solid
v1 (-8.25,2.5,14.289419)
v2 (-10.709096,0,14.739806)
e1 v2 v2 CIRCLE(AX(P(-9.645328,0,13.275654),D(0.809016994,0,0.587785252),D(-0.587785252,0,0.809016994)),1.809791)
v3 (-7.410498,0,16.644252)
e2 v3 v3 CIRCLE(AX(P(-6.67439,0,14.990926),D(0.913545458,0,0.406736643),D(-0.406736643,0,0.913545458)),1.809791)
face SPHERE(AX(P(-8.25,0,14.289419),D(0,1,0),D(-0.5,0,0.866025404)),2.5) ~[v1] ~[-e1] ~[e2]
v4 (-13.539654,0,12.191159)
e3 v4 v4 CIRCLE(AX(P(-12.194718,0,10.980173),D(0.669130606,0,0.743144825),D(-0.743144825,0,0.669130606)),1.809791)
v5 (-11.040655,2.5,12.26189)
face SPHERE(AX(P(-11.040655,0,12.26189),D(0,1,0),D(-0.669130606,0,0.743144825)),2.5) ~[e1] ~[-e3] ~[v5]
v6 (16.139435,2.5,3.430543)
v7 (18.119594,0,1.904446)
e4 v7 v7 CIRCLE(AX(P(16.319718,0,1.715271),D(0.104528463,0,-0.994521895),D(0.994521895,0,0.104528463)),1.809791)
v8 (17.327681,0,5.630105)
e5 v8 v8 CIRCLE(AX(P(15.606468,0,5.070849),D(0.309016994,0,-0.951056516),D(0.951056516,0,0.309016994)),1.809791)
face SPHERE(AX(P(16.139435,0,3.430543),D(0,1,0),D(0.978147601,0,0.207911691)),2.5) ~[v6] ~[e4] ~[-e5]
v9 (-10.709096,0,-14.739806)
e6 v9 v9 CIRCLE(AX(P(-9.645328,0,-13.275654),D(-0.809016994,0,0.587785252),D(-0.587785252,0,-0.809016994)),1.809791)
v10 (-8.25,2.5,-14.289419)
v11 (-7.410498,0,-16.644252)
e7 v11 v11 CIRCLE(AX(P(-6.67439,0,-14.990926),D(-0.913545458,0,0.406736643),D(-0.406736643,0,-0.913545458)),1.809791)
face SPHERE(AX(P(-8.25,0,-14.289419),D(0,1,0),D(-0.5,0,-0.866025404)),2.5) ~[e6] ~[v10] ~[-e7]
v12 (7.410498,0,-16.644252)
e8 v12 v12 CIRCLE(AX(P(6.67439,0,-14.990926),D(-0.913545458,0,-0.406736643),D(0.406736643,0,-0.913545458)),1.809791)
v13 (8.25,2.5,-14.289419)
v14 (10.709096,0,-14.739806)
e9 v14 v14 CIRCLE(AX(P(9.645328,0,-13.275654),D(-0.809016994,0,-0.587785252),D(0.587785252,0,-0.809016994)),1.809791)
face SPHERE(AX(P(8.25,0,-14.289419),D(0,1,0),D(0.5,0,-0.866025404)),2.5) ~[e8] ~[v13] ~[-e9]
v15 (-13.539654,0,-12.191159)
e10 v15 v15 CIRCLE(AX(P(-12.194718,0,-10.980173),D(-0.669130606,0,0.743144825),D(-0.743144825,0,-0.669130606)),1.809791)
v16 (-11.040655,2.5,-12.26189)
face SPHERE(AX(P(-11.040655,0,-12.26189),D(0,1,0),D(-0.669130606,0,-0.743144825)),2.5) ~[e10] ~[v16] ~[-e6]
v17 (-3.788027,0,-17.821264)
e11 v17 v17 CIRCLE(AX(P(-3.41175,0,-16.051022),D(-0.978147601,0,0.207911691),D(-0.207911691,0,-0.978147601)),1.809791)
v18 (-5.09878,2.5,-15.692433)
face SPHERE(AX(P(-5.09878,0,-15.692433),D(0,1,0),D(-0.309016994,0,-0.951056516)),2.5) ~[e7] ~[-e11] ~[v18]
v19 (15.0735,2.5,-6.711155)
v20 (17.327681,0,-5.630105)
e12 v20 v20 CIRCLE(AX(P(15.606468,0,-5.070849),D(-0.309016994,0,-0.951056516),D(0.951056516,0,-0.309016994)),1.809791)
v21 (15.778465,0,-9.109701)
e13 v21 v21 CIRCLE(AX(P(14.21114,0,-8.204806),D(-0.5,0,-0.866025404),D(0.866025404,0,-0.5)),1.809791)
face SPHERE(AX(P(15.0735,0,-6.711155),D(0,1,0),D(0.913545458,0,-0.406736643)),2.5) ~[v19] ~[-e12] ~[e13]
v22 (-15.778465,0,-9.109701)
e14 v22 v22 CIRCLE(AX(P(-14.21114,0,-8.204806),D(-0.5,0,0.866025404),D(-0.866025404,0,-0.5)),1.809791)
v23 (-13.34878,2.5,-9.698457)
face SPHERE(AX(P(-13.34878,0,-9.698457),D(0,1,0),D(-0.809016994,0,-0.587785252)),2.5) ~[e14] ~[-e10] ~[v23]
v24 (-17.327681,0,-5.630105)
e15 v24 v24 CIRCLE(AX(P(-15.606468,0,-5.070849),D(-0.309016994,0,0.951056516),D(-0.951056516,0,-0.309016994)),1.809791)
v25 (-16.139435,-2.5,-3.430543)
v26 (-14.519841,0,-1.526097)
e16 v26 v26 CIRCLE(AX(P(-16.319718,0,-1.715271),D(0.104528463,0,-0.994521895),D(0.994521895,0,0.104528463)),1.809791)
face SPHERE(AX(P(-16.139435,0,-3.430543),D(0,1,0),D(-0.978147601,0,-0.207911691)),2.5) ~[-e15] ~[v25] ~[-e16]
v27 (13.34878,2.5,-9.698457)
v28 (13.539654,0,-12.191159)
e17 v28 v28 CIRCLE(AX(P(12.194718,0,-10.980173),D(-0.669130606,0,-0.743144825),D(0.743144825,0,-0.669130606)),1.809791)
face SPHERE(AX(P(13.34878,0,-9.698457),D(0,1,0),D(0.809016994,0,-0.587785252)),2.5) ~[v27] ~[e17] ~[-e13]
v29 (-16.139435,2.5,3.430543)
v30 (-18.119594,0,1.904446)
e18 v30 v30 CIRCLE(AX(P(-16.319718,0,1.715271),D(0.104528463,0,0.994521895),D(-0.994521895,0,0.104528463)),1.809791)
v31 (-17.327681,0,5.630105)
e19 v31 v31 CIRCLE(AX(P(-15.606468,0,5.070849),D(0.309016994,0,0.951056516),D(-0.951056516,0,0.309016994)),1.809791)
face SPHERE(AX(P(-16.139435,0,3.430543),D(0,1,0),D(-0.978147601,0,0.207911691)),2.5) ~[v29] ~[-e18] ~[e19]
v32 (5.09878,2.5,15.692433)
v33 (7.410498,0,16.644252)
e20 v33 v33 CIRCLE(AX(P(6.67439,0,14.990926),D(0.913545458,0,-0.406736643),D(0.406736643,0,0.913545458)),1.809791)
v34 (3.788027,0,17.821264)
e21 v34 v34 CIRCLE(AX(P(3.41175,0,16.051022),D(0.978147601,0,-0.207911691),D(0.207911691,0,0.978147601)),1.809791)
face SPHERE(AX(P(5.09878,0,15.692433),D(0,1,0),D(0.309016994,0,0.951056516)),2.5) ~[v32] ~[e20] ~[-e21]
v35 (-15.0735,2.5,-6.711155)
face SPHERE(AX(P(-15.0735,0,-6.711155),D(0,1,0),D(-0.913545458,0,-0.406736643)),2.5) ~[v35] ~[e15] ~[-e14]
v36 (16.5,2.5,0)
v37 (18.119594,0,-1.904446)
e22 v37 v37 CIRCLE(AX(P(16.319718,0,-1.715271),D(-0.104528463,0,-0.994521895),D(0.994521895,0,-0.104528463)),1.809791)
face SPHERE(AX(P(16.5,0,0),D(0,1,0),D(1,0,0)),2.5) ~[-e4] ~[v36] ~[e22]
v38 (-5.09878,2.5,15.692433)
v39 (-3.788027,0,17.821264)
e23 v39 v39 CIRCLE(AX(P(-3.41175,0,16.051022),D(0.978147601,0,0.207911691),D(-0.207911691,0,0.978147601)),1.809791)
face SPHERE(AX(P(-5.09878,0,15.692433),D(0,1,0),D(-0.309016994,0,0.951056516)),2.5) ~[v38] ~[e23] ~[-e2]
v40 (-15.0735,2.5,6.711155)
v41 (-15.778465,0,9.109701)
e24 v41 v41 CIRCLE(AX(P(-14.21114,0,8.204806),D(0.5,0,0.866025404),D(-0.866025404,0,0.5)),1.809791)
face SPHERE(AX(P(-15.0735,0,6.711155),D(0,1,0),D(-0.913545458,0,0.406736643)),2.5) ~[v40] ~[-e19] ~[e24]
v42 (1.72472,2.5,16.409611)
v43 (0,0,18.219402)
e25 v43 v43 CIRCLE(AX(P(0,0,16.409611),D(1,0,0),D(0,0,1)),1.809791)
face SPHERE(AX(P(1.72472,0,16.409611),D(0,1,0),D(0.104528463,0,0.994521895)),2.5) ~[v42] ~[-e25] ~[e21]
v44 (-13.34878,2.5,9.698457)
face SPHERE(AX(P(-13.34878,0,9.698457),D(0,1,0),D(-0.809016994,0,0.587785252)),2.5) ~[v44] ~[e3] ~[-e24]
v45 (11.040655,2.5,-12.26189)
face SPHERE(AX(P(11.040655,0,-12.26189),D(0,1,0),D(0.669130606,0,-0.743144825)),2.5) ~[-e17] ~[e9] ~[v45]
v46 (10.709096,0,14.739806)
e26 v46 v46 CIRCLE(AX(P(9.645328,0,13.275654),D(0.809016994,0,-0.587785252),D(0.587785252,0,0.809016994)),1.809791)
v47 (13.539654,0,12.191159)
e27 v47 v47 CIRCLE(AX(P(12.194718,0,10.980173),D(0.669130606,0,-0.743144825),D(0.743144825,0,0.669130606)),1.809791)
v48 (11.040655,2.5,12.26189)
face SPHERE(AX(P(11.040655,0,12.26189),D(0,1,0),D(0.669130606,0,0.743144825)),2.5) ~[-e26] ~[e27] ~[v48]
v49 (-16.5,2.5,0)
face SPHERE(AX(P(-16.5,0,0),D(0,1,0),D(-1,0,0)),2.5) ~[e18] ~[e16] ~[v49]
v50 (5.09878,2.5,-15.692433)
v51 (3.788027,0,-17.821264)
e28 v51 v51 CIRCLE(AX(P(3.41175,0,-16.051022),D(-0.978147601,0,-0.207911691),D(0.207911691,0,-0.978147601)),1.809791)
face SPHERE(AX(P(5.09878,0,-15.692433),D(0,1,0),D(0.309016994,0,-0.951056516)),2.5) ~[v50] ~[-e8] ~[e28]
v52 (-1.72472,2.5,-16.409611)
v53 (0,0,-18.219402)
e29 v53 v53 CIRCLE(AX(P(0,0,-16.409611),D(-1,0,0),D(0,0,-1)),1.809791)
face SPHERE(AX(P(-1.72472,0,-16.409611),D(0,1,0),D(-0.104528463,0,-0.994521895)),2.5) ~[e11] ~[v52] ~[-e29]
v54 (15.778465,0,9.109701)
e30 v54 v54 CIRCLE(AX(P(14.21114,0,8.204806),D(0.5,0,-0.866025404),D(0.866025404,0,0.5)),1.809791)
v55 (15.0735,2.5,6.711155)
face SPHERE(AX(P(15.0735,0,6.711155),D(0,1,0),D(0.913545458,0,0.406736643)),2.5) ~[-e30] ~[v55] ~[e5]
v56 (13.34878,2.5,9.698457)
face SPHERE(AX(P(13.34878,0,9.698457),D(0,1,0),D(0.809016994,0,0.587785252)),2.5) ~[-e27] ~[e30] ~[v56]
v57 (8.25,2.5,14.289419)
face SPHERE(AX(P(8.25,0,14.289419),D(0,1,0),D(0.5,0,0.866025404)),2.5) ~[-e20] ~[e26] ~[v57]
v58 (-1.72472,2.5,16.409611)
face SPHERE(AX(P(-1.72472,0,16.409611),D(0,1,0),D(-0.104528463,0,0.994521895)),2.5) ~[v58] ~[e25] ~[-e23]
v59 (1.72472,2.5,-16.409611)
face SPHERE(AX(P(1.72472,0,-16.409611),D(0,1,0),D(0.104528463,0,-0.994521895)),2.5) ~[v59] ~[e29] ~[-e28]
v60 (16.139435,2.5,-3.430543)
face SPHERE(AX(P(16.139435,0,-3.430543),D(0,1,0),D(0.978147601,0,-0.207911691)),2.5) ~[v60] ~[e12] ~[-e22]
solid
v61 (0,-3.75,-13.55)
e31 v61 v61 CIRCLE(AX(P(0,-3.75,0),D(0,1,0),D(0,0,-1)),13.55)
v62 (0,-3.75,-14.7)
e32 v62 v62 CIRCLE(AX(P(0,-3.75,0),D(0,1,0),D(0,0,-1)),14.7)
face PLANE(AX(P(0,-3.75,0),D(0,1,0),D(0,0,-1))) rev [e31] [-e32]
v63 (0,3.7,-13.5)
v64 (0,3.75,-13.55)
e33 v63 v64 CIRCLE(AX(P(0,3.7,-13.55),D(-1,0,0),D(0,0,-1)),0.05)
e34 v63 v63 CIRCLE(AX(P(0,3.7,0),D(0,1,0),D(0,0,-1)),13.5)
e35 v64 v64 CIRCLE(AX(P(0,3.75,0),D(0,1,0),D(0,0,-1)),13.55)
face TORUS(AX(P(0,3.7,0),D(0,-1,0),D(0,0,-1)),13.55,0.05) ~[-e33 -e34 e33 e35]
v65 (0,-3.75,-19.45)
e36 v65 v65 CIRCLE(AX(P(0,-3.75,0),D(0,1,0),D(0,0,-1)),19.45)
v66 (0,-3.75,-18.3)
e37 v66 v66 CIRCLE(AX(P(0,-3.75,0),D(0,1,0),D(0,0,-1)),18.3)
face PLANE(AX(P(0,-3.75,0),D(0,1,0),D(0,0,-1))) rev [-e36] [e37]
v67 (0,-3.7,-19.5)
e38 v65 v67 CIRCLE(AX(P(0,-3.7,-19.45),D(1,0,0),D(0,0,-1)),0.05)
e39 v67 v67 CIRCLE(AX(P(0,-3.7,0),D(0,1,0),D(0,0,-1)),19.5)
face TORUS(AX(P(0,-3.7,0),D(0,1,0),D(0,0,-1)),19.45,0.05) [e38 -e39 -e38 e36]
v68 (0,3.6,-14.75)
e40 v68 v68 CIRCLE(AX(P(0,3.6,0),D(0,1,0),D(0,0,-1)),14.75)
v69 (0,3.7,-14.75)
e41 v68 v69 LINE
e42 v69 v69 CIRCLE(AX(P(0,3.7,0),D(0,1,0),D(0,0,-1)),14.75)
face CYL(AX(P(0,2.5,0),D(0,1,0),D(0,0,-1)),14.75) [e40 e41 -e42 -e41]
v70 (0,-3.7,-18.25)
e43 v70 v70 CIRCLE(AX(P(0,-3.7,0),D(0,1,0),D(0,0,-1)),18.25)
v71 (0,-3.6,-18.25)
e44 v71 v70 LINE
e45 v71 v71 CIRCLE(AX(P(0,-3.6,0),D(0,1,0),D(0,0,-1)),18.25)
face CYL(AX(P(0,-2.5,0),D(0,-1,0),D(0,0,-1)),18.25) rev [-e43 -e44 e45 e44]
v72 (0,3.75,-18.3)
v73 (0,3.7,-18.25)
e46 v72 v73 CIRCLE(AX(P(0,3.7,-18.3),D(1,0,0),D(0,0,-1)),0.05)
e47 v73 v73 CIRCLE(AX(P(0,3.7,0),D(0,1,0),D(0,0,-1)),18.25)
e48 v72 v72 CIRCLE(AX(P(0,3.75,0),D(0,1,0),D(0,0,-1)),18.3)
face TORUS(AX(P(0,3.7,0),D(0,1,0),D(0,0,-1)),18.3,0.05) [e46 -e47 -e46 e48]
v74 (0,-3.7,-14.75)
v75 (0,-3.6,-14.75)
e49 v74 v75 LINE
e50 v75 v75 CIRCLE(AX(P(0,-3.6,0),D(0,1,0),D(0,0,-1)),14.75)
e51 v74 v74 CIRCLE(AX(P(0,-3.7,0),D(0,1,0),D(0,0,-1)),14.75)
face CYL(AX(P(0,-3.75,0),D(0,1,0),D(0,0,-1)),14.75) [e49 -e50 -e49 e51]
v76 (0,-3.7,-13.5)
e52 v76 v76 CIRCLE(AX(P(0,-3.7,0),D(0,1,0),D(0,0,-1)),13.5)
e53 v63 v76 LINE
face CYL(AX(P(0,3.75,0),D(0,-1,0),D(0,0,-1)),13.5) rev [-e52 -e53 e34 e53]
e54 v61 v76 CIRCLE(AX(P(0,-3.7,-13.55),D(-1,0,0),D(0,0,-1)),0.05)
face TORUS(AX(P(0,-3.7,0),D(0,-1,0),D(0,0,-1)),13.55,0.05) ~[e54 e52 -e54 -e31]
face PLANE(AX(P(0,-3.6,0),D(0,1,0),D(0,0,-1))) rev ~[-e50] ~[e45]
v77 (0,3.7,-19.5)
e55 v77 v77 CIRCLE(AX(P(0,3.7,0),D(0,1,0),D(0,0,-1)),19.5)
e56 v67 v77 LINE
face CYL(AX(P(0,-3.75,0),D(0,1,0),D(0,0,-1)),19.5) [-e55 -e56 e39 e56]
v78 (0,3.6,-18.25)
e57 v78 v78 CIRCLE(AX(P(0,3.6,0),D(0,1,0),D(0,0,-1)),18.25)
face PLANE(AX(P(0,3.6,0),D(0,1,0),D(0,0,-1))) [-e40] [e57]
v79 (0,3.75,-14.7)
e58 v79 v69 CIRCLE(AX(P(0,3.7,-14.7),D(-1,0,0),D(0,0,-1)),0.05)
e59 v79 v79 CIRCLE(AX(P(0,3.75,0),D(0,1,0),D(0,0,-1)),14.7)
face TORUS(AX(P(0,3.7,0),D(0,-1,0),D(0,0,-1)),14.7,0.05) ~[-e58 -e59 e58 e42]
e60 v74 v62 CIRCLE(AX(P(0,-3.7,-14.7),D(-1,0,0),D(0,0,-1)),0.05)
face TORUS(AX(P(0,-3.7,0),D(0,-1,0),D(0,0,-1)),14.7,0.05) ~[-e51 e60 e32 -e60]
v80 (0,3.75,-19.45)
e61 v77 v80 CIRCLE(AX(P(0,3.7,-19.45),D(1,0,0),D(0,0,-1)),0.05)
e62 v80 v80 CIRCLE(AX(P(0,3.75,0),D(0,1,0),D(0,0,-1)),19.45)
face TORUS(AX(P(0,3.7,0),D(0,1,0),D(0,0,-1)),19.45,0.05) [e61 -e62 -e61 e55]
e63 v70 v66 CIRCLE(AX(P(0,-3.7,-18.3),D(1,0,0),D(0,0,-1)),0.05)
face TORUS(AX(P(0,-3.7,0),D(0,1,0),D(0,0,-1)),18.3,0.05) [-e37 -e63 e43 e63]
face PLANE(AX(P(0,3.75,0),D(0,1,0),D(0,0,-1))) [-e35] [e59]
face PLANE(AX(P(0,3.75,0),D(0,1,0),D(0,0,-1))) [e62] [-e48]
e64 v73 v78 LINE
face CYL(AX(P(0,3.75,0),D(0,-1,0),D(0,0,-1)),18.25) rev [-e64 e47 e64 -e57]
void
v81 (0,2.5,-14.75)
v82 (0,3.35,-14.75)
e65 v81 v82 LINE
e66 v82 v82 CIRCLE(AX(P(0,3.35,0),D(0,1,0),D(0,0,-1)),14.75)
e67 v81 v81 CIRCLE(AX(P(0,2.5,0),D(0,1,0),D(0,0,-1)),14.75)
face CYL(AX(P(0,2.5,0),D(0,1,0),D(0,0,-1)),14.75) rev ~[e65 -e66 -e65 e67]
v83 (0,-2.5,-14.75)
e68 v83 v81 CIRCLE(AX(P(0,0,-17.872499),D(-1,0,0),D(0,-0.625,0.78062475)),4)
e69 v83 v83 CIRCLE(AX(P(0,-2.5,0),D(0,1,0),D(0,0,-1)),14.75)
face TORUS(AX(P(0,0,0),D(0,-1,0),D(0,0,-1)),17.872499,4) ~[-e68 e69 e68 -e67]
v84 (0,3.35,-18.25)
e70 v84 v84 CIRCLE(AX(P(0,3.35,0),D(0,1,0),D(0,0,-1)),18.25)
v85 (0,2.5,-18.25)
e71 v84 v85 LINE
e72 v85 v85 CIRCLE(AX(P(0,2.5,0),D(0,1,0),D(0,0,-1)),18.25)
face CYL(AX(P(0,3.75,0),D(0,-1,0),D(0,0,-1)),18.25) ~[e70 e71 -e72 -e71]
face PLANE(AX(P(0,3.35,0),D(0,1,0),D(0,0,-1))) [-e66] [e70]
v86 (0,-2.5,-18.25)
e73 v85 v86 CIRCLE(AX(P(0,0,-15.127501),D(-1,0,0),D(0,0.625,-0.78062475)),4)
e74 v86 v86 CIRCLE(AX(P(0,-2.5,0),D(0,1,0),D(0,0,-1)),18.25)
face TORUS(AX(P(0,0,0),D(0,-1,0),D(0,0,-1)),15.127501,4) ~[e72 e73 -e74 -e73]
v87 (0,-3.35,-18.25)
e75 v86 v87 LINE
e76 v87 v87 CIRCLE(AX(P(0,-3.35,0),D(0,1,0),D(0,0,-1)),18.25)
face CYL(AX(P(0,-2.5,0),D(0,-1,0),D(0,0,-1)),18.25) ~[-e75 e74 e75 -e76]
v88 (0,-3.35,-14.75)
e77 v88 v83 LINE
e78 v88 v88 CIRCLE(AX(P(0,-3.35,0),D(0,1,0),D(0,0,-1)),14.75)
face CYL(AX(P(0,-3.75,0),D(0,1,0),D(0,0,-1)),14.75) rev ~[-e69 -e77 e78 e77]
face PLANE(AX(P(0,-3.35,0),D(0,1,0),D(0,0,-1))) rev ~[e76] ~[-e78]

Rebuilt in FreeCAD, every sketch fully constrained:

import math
import FreeCAD as App
import Part
import Sketcher
from FreeCAD import Vector
Q = App.Units.Quantity


def edges_at(feature, points):
    """Names of the edges that pass closest to the given points."""
    edges = feature.Shape.Edges
    near = lambda p: min(range(len(edges)), key=lambda i: edges[i].distToShape(Part.Vertex(*p))[0])
    return sorted({f"Edge{near(p) + 1}" for p in points})

doc = App.newDocument("Part")
body = doc.addObject("PartDesign::Body", "Body")
body.AllowCompound = True

# Sketch on XY plane
sketch1 = body.newObject("Sketcher::SketchObject", "Sketch")
sketch1.AttachmentSupport = (doc.getObject("XY_Plane"), [""])
sketch1.MapMode = "FlatFace"
sketch1.addGeometry([
    Part.LineSegment(Vector(-18.2, 3.8, 0), Vector(-19.5, 3.8, 0)),  # 0
    Part.LineSegment(Vector(-19.5, 3.8, 0), Vector(-19.5, -3.8, 0)),  # 1
    Part.LineSegment(Vector(-19.5, -3.8, 0), Vector(-18.2, -3.8, 0)),  # 2
    Part.LineSegment(Vector(-18.2, -3.8, 0), Vector(-18.2, -2.5, 0)),  # 3
    Part.ArcOfCircle(Part.Circle(Vector(-15.1, 0, 0), Vector(0, 0, 1), 4), math.radians(141), math.radians(219)),  # 4
    Part.LineSegment(Vector(-18.2, 2.5, 0), Vector(-18.2, 3.8, 0)),  # 5
    Part.LineSegment(Vector(-14.8, -2.5, 0), Vector(-14.8, -3.8, 0)),  # 6
    Part.LineSegment(Vector(-14.8, -3.8, 0), Vector(-13.5, -3.8, 0)),  # 7
    Part.LineSegment(Vector(-13.5, -3.8, 0), Vector(-13.5, 3.8, 0)),  # 8
    Part.LineSegment(Vector(-13.5, 3.8, 0), Vector(-14.8, 3.8, 0)),  # 9
    Part.LineSegment(Vector(-14.8, 3.8, 0), Vector(-14.8, 2.5, 0)),  # 10
    Part.ArcOfCircle(Part.Circle(Vector(-17.9, 0, 0), Vector(0, 0, 1), 4), math.radians(-39), math.radians(39)),  # 11
], False)
sketch1.addConstraint([
    Sketcher.Constraint("Coincident", 0, 2, 1, 1),
    Sketcher.Constraint("Coincident", 1, 2, 2, 1),
    Sketcher.Constraint("Coincident", 2, 2, 3, 1),
    Sketcher.Constraint("Coincident", 3, 2, 4, 2),
    Sketcher.Constraint("Coincident", 4, 1, 5, 1),
    Sketcher.Constraint("Coincident", 5, 2, 0, 1),
    Sketcher.Constraint("Coincident", 6, 2, 7, 1),
    Sketcher.Constraint("Coincident", 7, 2, 8, 1),
    Sketcher.Constraint("Coincident", 8, 2, 9, 1),
    Sketcher.Constraint("Coincident", 9, 2, 10, 1),
    Sketcher.Constraint("Coincident", 10, 2, 11, 2),
    Sketcher.Constraint("Coincident", 11, 1, 6, 1),
    Sketcher.Constraint("Horizontal", 0),
    Sketcher.Constraint("Vertical", 1),
    Sketcher.Constraint("Horizontal", 2),
    Sketcher.Constraint("Vertical", 3),
    Sketcher.Constraint("Vertical", 5),
    Sketcher.Constraint("Vertical", 6),
    Sketcher.Constraint("Horizontal", 7),
    Sketcher.Constraint("Vertical", 8),
    Sketcher.Constraint("Horizontal", 9),
    Sketcher.Constraint("Vertical", 10),
    Sketcher.Constraint("Equal", 4, 11),
    Sketcher.Constraint("Symmetric", 3, 2, 4, 1, -1),
    Sketcher.Constraint("Symmetric", 6, 2, 9, 2, -1),
    Sketcher.Constraint("PointOnObject", 11, 3, -1),
    Sketcher.Constraint("Horizontal", 2, 2, 6, 2),
    Sketcher.Constraint("Horizontal", 5, 2, 8, 2),
    Sketcher.Constraint("Horizontal", 4, 1, 10, 2),
    Sketcher.Constraint("Equal", 2, 7),
    Sketcher.Constraint("Equal", 9, 3),
    Sketcher.Constraint("Radius", 4, Q("4 mm")),
    Sketcher.Constraint("DistanceY", 1, 2, 1, 1, Q("7.5 mm")),
    Sketcher.Constraint("DistanceY", 3, 2, 4, 1, Q("5 mm")),
    Sketcher.Constraint("DistanceX", 0, 2, 8, 2, Q("6 mm")),
    Sketcher.Constraint("DistanceX", 0, 2, -1, 1, Q("19.5 mm")),
])
revolution = body.newObject("PartDesign::Revolution", "Revolution")
revolution.Profile = sketch1
revolution.ReferenceAxis = (sketch1, ["V_Axis"])
revolution.Angle = 360

# Sketch on XY plane
sketch2 = body.newObject("Sketcher::SketchObject", "Sketch001")
sketch2.AttachmentSupport = (doc.getObject("XY_Plane"), [""])
sketch2.MapMode = "FlatFace"
sketch2.addGeometry([
    Part.LineSegment(Vector(-18.25, 3.6, 0), Vector(-18.25, 3.35, 0)),  # 0
    Part.LineSegment(Vector(-18.25, 3.35, 0), Vector(-13.5, 3.35, 0)),  # 1
    Part.LineSegment(Vector(-13.5, 3.35, 0), Vector(-13.5, 3.6, 0)),  # 2
    Part.LineSegment(Vector(-13.5, 3.6, 0), Vector(-18.25, 3.6, 0)),  # 3
    Part.LineSegment(Vector(-18.25, -3.35, 0), Vector(-18.25, -3.6, 0)),  # 4
    Part.LineSegment(Vector(-18.25, -3.6, 0), Vector(-13.5, -3.6, 0)),  # 5
    Part.LineSegment(Vector(-13.5, -3.6, 0), Vector(-13.5, -3.35, 0)),  # 6
    Part.LineSegment(Vector(-13.5, -3.35, 0), Vector(-18.25, -3.35, 0)),  # 7
], False)
sketch2.addConstraint([
    Sketcher.Constraint("Coincident", 0, 2, 1, 1),
    Sketcher.Constraint("Coincident", 1, 2, 2, 1),
    Sketcher.Constraint("Coincident", 2, 2, 3, 1),
    Sketcher.Constraint("Coincident", 3, 2, 0, 1),
    Sketcher.Constraint("Coincident", 4, 2, 5, 1),
    Sketcher.Constraint("Coincident", 5, 2, 6, 1),
    Sketcher.Constraint("Coincident", 6, 2, 7, 1),
    Sketcher.Constraint("Coincident", 7, 2, 4, 1),
    Sketcher.Constraint("Vertical", 0),
    Sketcher.Constraint("Horizontal", 1),
    Sketcher.Constraint("Vertical", 2),
    Sketcher.Constraint("Horizontal", 3),
    Sketcher.Constraint("Vertical", 4),
    Sketcher.Constraint("Horizontal", 5),
    Sketcher.Constraint("Vertical", 6),
    Sketcher.Constraint("Horizontal", 7),
    Sketcher.Constraint("Symmetric", 3, 2, 4, 2, -1),
    Sketcher.Constraint("Symmetric", 1, 2, 6, 2, -1),
    Sketcher.Constraint("DistanceX", 1, 1, 1, 2, Q("4.75 mm")),
    Sketcher.Constraint("DistanceY", 0, 2, 0, 1, Q("0.25 mm")),
    Sketcher.Constraint("DistanceX", 1, 2, -1, 1, Q("13.5 mm")),
    Sketcher.Constraint("DistanceY", -1, 1, 2, 2, Q("3.6 mm")),
])
revolution2 = body.newObject("PartDesign::Revolution", "Revolution001")
revolution2.Profile = sketch2
revolution2.ReferenceAxis = (sketch2, ["V_Axis"])
revolution2.Angle = 360
doc.recompute()

fillet = body.newObject("PartDesign::Fillet", "Fillet")
fillet.Base = (revolution2, edges_at(revolution2, [
    (0, -3.75, 19.5),
    (0, -3.75, 18.25),
    (0, 3.75, 18.25),
    (0, 3.75, 19.5),
]))
fillet.Radius = 0.05
doc.recompute()

fillet2 = body.newObject("PartDesign::Fillet", "Fillet001")
fillet2.Base = (fillet, edges_at(fillet, [
    (0, -3.75, 13.5),
    (0, 3.75, 14.75),
    (0, -3.75, 14.75),
    (0, 3.75, 13.5),
]))
fillet2.Radius = 0.05
body2 = doc.addObject("PartDesign::Body", "Body001")

# Sketch on XY plane
sketch3 = body2.newObject("Sketcher::SketchObject", "Sketch002")
sketch3.AttachmentSupport = (doc.getObject("XY_Plane001"), [""])
sketch3.MapMode = "FlatFace"
sketch3.addGeometry([
    Part.LineSegment(Vector(-16.5, -2.5, 0), Vector(-16.5, 2.5, 0)),
    Part.ArcOfCircle(Part.Circle(Vector(-16.5, 0, 0), Vector(0, 0, 1), 2.5), math.radians(90), math.radians(270)),
], False)
sketch3.addGeometry(Part.LineSegment(Vector(-16.5, 2.5, 0), Vector(-16.5, -2.5, 0)), True)  # axis
sketch3.addConstraint([
    Sketcher.Constraint("Coincident", 0, 1, 1, 2),
    Sketcher.Constraint("Coincident", 1, 1, 0, 2),
    Sketcher.Constraint("Vertical", 0),
    Sketcher.Constraint("Vertical", 2),
    Sketcher.Constraint("Coincident", 2, 1, 1, 1),
    Sketcher.Constraint("PointOnObject", 1, 3, -1),
    Sketcher.Constraint("Vertical", 1, 3, 0, 1),
    Sketcher.Constraint("Equal", 0, 2),
    Sketcher.Constraint("Radius", 1, Q("2.5 mm")),
    Sketcher.Constraint("DistanceX", 1, 3, -1, 1, Q("16.5 mm")),
])
revolution3 = body2.newObject("PartDesign::Revolution", "Revolution002")
revolution3.Profile = sketch3
revolution3.ReferenceAxis = (sketch3, ["Axis0"])
revolution3.Angle = 360
doc.recompute()

polarpattern = body2.newObject("PartDesign::PolarPattern", "PolarPattern")
polarpattern.Originals = [revolution3]
polarpattern.Axis = (doc.getObject("Y_Axis001"), [""])
polarpattern.Angle = 360
polarpattern.Occurrences = 30
body2.Tip = polarpattern

doc.recompute()
